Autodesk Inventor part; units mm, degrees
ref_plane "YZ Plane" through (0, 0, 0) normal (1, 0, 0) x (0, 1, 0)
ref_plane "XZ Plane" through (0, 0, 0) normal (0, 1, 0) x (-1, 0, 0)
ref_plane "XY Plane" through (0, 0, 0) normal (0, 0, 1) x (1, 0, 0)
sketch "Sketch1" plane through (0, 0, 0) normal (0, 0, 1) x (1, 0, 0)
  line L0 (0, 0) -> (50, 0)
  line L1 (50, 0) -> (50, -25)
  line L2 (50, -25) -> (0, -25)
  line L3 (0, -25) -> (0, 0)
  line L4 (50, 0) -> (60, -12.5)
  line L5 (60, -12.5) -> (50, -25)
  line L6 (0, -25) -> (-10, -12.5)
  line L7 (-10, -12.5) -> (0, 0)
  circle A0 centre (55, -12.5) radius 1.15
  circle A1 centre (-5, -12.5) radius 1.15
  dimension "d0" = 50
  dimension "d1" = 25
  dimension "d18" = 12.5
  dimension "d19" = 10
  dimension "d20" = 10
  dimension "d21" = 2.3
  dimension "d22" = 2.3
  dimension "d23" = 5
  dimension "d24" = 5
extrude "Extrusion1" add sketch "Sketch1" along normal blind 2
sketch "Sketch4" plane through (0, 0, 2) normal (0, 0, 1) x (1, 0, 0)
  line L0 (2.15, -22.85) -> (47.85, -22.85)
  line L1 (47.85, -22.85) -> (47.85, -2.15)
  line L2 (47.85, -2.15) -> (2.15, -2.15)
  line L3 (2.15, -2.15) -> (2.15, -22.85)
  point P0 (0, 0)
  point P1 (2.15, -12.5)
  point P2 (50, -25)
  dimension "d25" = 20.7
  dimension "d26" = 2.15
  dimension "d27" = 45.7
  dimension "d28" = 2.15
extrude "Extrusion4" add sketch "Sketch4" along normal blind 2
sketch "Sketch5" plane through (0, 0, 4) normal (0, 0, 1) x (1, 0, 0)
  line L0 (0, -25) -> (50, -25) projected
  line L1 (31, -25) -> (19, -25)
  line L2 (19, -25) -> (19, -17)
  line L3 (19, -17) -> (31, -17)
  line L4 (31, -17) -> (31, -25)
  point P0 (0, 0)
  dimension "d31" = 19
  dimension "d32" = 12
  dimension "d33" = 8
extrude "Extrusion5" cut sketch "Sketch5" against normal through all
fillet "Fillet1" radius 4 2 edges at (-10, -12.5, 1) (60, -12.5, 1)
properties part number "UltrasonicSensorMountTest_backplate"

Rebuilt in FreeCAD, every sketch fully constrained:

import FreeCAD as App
import Part
import Sketcher
Q = App.Units.Quantity


def edges_at(feature, points):
    """Names of the edges that pass closest to the given points."""
    edges = feature.Shape.Edges
    near = lambda p: min(range(len(edges)), key=lambda i: edges[i].distToShape(Part.Vertex(*p))[0])
    return sorted({f"Edge{near(p) + 1}" for p in points})

doc = App.newDocument("Part")
body = doc.addObject("PartDesign::Body", "Body")

# Sketch on XY plane
sketch1 = doc.addObject("Sketcher::SketchObject", "Sketch")
body.addObject(sketch1)
sketch1.AttachmentSupport = (doc.XY_Plane, [""])
sketch1.MapMode = "FlatFace"
sketch1.addGeometry(Part.LineSegment(App.Vector(50, 0, 0), App.Vector(0, 0, 0)), False)
sketch1.addGeometry(Part.LineSegment(App.Vector(0, 0, 0), App.Vector(-10, -12.5, 0)), False)
sketch1.addGeometry(Part.LineSegment(App.Vector(-10, -12.5, 0), App.Vector(0, -25, 0)), False)
sketch1.addGeometry(Part.LineSegment(App.Vector(0, -25, 0), App.Vector(50, -25, 0)), False)
sketch1.addGeometry(Part.LineSegment(App.Vector(50, -25, 0), App.Vector(60, -12.5, 0)), False)
sketch1.addGeometry(Part.LineSegment(App.Vector(60, -12.5, 0), App.Vector(50, 0, 0)), False)
sketch1.addGeometry(Part.Circle(App.Vector(55, -12.5, 0), App.Vector(0, 0, 1), 1.1), False)
sketch1.addGeometry(Part.Circle(App.Vector(-5, -12.5, 0), App.Vector(0, 0, 1), 1.1), False)
sketch1.addConstraint(Sketcher.Constraint("Coincident", 0, 2, 1, 1))
sketch1.addConstraint(Sketcher.Constraint("Coincident", 1, 2, 2, 1))
sketch1.addConstraint(Sketcher.Constraint("Coincident", 2, 2, 3, 1))
sketch1.addConstraint(Sketcher.Constraint("Coincident", 3, 2, 4, 1))
sketch1.addConstraint(Sketcher.Constraint("Coincident", 4, 2, 5, 1))
sketch1.addConstraint(Sketcher.Constraint("Coincident", 5, 2, 0, 1))
sketch1.addConstraint(Sketcher.Constraint("Horizontal", 0))
sketch1.addConstraint(Sketcher.Constraint("Horizontal", 3))
sketch1.addConstraint(Sketcher.Constraint("Coincident", 0, 2, -1, 1))
sketch1.addConstraint(Sketcher.Constraint("Equal", 6, 7))
sketch1.addConstraint(Sketcher.Constraint("PointOnObject", 2, 2, -2))
sketch1.addConstraint(Sketcher.Constraint("Parallel", 1, 4))
sketch1.addConstraint(Sketcher.Constraint("Parallel", 2, 5))
sketch1.addConstraint(Sketcher.Constraint("Horizontal", 6, 3, 7, 3))
sketch1.addConstraint(Sketcher.Constraint("Horizontal", 7, 3, 1, 2))
sketch1.addConstraint(Sketcher.Constraint("Horizontal", 1, 2, 4, 2))
sketch1.addConstraint(Sketcher.Constraint("Vertical", 3, 2, 5, 2))
sketch1.addConstraint(Sketcher.Constraint("Diameter", 6, Q("2.3 mm")))
sketch1.addConstraint(Sketcher.Constraint("DistanceX", 0, 2, 0, 1, Q("50 mm")))
sketch1.addConstraint(Sketcher.Constraint("DistanceX", 7, 3, -1, 1, Q("5 mm")))
sketch1.addConstraint(Sketcher.Constraint("DistanceX", 1, 2, -1, 1, Q("10 mm")))
sketch1.addConstraint(Sketcher.Constraint("DistanceY", 2, 2, -1, 1, Q("25 mm")))
sketch1.addConstraint(Sketcher.Constraint("DistanceX", 3, 2, 6, 3, Q("5 mm")))
pad1 = doc.addObject("PartDesign::Pad", "Pad")
body.addObject(pad1)
pad1.Profile = sketch1
pad1.Length = 2

# Sketch on XY plane
sketch2 = doc.addObject("Sketcher::SketchObject", "Sketch001")
body.addObject(sketch2)
sketch2.AttachmentSupport = (doc.XY_Plane, [""])
sketch2.MapMode = "FlatFace"
sketch2.AttachmentOffset = App.Placement(App.Vector(0, 0, 2), App.Rotation())
sketch2.addGeometry(Part.LineSegment(App.Vector(2, -2, 0), App.Vector(2, -23, 0)), False)
sketch2.addGeometry(Part.LineSegment(App.Vector(2, -23, 0), App.Vector(48, -23, 0)), False)
sketch2.addGeometry(Part.LineSegment(App.Vector(48, -23, 0), App.Vector(48, -2, 0)), False)
sketch2.addGeometry(Part.LineSegment(App.Vector(48, -2, 0), App.Vector(2, -2, 0)), False)
sketch2.addConstraint(Sketcher.Constraint("Coincident", 0, 2, 1, 1))
sketch2.addConstraint(Sketcher.Constraint("Coincident", 1, 2, 2, 1))
sketch2.addConstraint(Sketcher.Constraint("Coincident", 2, 2, 3, 1))
sketch2.addConstraint(Sketcher.Constraint("Coincident", 3, 2, 0, 1))
sketch2.addConstraint(Sketcher.Constraint("Vertical", 0))
sketch2.addConstraint(Sketcher.Constraint("Horizontal", 1))
sketch2.addConstraint(Sketcher.Constraint("Vertical", 2))
sketch2.addConstraint(Sketcher.Constraint("Horizontal", 3))
sketch2.addConstraint(Sketcher.Constraint("DistanceX", 1, 1, 1, 2, Q("45.7 mm")))
sketch2.addConstraint(Sketcher.Constraint("DistanceY", 0, 2, 0, 1, Q("20.7 mm")))
sketch2.addConstraint(Sketcher.Constraint("DistanceX", -1, 1, 0, 2, Q("2.15 mm")))
sketch2.addConstraint(Sketcher.Constraint("DistanceY", 2, 2, -1, 1, Q("2.15 mm")))
pad2 = doc.addObject("PartDesign::Pad", "Pad001")
body.addObject(pad2)
pad2.Profile = sketch2
pad2.Length = 2

# Sketch on XY plane
sketch3 = doc.addObject("Sketcher::SketchObject", "Sketch002")
body.addObject(sketch3)
sketch3.AttachmentSupport = (doc.XY_Plane, [""])
sketch3.MapMode = "FlatFace"
sketch3.AttachmentOffset = App.Placement(App.Vector(0, 0, 4), App.Rotation())
sketch3.addGeometry(Part.LineSegment(App.Vector(19, -17, 0), App.Vector(19, -25, 0)), False)
sketch3.addGeometry(Part.LineSegment(App.Vector(19, -25, 0), App.Vector(31, -25, 0)), False)
sketch3.addGeometry(Part.LineSegment(App.Vector(31, -25, 0), App.Vector(31, -17, 0)), False)
sketch3.addGeometry(Part.LineSegment(App.Vector(31, -17, 0), App.Vector(19, -17, 0)), False)
sketch3.addConstraint(Sketcher.Constraint("Coincident", 0, 2, 1, 1))
sketch3.addConstraint(Sketcher.Constraint("Coincident", 1, 2, 2, 1))
sketch3.addConstraint(Sketcher.Constraint("Coincident", 2, 2, 3, 1))
sketch3.addConstraint(Sketcher.Constraint("Coincident", 3, 2, 0, 1))
sketch3.addConstraint(Sketcher.Constraint("Vertical", 0))
sketch3.addConstraint(Sketcher.Constraint("Horizontal", 1))
sketch3.addConstraint(Sketcher.Constraint("Vertical", 2))
sketch3.addConstraint(Sketcher.Constraint("Horizontal", 3))
sketch3.addConstraint(Sketcher.Constraint("DistanceX", 1, 1, 1, 2, Q("12 mm")))
sketch3.addConstraint(Sketcher.Constraint("DistanceY", 0, 2, 0, 1, Q("8 mm")))
sketch3.addConstraint(Sketcher.Constraint("DistanceX", -1, 1, 0, 2, Q("19 mm")))
sketch3.addConstraint(Sketcher.Constraint("DistanceY", 0, 2, -1, 1, Q("25 mm")))
pocket1 = doc.addObject("PartDesign::Pocket", "Pocket")
body.addObject(pocket1)
pocket1.Profile = sketch3
pocket1.Type = "ThroughAll"
doc.recompute()

fillet = doc.addObject("PartDesign::Fillet", "Fillet")
body.addObject(fillet)
fillet.Base = (pocket1, edges_at(pocket1, [(-10, -12.5, 1), (60, -12.5, 1)]))
fillet.Radius = 4

doc.recompute()
